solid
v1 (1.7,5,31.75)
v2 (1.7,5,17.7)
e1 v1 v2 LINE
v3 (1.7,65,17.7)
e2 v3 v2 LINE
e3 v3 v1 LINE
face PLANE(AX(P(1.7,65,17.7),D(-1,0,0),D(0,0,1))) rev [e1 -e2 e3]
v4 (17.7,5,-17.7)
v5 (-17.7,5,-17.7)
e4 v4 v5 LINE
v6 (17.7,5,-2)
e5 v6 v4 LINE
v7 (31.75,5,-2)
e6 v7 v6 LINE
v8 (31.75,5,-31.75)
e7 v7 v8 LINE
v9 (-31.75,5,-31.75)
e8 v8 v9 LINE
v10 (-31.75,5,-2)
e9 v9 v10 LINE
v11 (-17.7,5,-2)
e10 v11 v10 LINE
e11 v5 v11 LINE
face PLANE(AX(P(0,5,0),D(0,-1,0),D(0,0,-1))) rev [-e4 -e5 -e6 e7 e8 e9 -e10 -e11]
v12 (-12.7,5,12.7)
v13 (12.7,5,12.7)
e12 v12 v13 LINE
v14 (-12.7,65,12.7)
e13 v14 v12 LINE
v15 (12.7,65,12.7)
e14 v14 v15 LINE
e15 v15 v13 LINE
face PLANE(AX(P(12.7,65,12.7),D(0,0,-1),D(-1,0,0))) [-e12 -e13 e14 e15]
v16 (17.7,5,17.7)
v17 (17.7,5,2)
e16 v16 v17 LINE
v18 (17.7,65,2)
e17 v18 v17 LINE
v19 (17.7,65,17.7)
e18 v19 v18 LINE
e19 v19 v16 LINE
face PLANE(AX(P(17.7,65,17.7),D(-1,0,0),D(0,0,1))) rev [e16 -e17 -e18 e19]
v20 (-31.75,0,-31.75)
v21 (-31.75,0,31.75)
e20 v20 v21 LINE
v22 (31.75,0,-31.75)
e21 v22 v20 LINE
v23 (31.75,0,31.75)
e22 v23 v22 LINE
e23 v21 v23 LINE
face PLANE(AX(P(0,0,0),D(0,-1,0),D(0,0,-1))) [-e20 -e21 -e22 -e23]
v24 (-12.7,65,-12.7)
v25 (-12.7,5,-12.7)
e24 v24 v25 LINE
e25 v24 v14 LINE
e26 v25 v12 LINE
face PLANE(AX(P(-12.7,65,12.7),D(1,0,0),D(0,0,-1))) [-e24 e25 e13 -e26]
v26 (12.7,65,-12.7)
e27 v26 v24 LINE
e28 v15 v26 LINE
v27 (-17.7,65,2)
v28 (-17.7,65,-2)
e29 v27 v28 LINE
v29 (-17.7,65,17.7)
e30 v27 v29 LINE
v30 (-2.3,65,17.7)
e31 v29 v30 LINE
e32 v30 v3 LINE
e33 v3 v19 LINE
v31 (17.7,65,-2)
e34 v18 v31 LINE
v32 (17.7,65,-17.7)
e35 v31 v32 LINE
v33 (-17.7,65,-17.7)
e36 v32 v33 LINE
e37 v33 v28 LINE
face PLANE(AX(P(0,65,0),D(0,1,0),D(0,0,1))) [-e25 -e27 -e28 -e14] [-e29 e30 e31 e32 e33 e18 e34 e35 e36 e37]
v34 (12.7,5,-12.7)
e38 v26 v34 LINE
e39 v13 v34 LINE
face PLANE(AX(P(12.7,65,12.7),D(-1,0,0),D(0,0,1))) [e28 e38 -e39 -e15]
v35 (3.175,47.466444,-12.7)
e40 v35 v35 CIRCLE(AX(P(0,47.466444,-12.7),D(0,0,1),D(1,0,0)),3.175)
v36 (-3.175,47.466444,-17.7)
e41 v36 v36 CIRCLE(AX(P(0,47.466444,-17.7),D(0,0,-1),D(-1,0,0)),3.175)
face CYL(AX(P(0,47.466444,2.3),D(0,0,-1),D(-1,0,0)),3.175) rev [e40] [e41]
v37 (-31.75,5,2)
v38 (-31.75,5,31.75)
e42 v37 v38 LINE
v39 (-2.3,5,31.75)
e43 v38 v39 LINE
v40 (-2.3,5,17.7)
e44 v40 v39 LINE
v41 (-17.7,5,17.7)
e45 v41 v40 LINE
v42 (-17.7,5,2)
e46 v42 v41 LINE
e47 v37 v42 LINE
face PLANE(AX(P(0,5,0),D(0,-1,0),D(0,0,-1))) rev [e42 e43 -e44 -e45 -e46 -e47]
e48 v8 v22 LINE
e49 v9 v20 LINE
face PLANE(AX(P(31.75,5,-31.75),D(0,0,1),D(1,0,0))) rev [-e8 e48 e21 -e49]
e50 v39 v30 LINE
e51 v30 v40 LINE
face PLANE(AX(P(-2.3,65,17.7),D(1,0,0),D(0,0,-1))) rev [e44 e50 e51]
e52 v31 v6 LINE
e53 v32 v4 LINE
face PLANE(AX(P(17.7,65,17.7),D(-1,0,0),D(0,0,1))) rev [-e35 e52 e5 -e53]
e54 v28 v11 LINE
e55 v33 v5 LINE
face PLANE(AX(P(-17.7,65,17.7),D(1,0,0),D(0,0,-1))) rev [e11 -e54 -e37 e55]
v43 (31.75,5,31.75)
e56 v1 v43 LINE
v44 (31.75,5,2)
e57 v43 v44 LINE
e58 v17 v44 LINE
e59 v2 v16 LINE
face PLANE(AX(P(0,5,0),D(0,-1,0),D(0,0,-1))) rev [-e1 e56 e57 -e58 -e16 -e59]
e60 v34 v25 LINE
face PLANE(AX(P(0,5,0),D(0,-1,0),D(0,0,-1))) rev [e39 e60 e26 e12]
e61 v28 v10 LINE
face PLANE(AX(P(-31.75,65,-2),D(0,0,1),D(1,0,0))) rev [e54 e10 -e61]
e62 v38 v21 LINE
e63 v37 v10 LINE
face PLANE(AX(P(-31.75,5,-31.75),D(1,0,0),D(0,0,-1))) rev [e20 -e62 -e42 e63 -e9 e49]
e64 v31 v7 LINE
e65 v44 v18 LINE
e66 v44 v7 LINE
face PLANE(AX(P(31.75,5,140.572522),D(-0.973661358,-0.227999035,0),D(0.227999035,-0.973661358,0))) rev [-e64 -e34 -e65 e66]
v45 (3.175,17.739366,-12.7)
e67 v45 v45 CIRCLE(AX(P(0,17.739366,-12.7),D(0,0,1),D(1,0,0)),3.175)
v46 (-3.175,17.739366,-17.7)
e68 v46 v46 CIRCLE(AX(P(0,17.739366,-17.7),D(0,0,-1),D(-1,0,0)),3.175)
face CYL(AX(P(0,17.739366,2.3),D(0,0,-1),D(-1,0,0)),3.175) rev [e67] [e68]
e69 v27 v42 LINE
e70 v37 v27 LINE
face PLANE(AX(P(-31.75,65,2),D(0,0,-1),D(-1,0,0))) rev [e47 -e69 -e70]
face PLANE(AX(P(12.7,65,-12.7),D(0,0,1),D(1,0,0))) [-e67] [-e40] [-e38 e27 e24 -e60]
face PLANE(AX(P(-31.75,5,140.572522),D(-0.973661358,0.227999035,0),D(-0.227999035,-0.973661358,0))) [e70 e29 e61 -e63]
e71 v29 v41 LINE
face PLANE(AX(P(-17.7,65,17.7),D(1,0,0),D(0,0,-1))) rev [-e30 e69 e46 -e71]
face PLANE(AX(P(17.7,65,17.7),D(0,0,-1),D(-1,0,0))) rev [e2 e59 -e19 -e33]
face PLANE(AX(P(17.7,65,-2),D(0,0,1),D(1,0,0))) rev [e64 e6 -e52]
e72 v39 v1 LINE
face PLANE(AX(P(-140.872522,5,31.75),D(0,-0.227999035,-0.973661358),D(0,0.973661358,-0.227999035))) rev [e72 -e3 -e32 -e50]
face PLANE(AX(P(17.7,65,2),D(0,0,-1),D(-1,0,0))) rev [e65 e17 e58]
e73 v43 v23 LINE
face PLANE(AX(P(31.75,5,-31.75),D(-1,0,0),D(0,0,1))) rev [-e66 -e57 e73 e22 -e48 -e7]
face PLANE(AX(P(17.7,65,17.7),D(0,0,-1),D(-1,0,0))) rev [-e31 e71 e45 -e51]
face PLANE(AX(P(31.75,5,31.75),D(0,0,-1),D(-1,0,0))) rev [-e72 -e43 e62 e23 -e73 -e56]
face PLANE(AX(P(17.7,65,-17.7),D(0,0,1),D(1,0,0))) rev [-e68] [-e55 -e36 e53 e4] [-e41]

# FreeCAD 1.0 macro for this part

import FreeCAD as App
import Part
import Sketcher
Q = App.Units.Quantity

doc = App.newDocument("Part")
body = doc.addObject("PartDesign::Body", "Body")

# Sketch on XZ plane
sketch1 = body.newObject("Sketcher::SketchObject", "Sketch")
sketch1.AttachmentSupport = (doc.getObject("XZ_Plane"), [""])
sketch1.MapMode = "FlatFace"
sketch1.addGeometry([
    Part.LineSegment(App.Vector(-32, -32, 0), App.Vector(-32, 32, 0)),
    Part.LineSegment(App.Vector(-32, 32, 0), App.Vector(32, 32, 0)),
    Part.LineSegment(App.Vector(32, 32, 0), App.Vector(32, -32, 0)),
    Part.LineSegment(App.Vector(32, -32, 0), App.Vector(-32, -32, 0)),
], False)
sketch1.addConstraint([
    Sketcher.Constraint("Coincident", 0, 2, 1, 1),
    Sketcher.Constraint("Coincident", 1, 2, 2, 1),
    Sketcher.Constraint("Coincident", 2, 2, 3, 1),
    Sketcher.Constraint("Coincident", 3, 2, 0, 1),
    Sketcher.Constraint("Vertical", 0),
    Sketcher.Constraint("Horizontal", 1),
    Sketcher.Constraint("Vertical", 2),
    Sketcher.Constraint("Horizontal", 3),
    Sketcher.Constraint("Symmetric", 0, 2, 2, 2, -1, 1),
    Sketcher.Constraint("Equal", 3, 0),
    Sketcher.Constraint("DistanceX", 1, 1, 1, 2, Q("63.5 mm")),
])
pad1 = body.newObject("PartDesign::Pad", "Pad")
pad1.Profile = sketch1
pad1.Length = 5
pad1.Reversed = True

# Sketch on XZ plane
sketch2 = body.newObject("Sketcher::SketchObject", "Sketch001")
sketch2.AttachmentSupport = (doc.getObject("XZ_Plane"), [""])
sketch2.MapMode = "FlatFace"
sketch2.AttachmentOffset = App.Placement(App.Vector(0, 0, -5), App.Rotation())
sketch2.addGeometry([
    Part.LineSegment(App.Vector(-18, -18, 0), App.Vector(-18, 18, 0)),  # 0
    Part.LineSegment(App.Vector(-18, 18, 0), App.Vector(18, 18, 0)),  # 1
    Part.LineSegment(App.Vector(18, 18, 0), App.Vector(18, -18, 0)),  # 2
    Part.LineSegment(App.Vector(18, -18, 0), App.Vector(-18, -18, 0)),  # 3
    Part.LineSegment(App.Vector(13, 13, 0), App.Vector(-13, 13, 0)),  # 4
    Part.LineSegment(App.Vector(-13, 13, 0), App.Vector(-13, -13, 0)),  # 5
    Part.LineSegment(App.Vector(-13, -13, 0), App.Vector(13, -13, 0)),  # 6
    Part.LineSegment(App.Vector(13, -13, 0), App.Vector(13, 13, 0)),  # 7
], False)
sketch2.addConstraint([
    Sketcher.Constraint("Coincident", 0, 2, 1, 1),
    Sketcher.Constraint("Coincident", 1, 2, 2, 1),
    Sketcher.Constraint("Coincident", 2, 2, 3, 1),
    Sketcher.Constraint("Coincident", 3, 2, 0, 1),
    Sketcher.Constraint("Coincident", 4, 2, 5, 1),
    Sketcher.Constraint("Coincident", 5, 2, 6, 1),
    Sketcher.Constraint("Coincident", 6, 2, 7, 1),
    Sketcher.Constraint("Coincident", 7, 2, 4, 1),
    Sketcher.Constraint("Vertical", 0),
    Sketcher.Constraint("Horizontal", 1),
    Sketcher.Constraint("Vertical", 2),
    Sketcher.Constraint("Horizontal", 3),
    Sketcher.Constraint("Horizontal", 4),
    Sketcher.Constraint("Vertical", 5),
    Sketcher.Constraint("Horizontal", 6),
    Sketcher.Constraint("Vertical", 7),
    Sketcher.Constraint("Symmetric", 0, 2, 2, 2, -1, 1),
    Sketcher.Constraint("Symmetric", 4, 2, 6, 2, -1, 1),
    Sketcher.Constraint("Equal", 3, 0),
    Sketcher.Constraint("Equal", 6, 5),
    Sketcher.Constraint("DistanceX", 1, 1, 1, 2, Q("35.4 mm")),
    Sketcher.Constraint("DistanceX", 4, 2, 4, 1, Q("25.4 mm")),
])
pad2 = body.newObject("PartDesign::Pad", "Pad001")
pad2.Profile = sketch2
pad2.Length = 60
pad2.Reversed = True

# Sketch on XZ plane
sketch3 = body.newObject("Sketcher::SketchObject", "Sketch002")
sketch3.AttachmentSupport = (doc.getObject("XZ_Plane"), [""])
sketch3.MapMode = "FlatFace"
sketch3.AttachmentOffset = App.Placement(App.Vector(0, 0, -5), App.Rotation())
sketch3.addGeometry([
    Part.LineSegment(App.Vector(-31.8, -2, 0), App.Vector(-31.8, 2, 0)),
    Part.LineSegment(App.Vector(-31.8, 2, 0), App.Vector(-17.7, 2, 0)),
    Part.LineSegment(App.Vector(-17.7, 2, 0), App.Vector(-17.7, -2, 0)),
    Part.LineSegment(App.Vector(-17.7, -2, 0), App.Vector(-31.8, -2, 0)),
], False)
sketch3.addConstraint([
    Sketcher.Constraint("Coincident", 0, 2, 1, 1),
    Sketcher.Constraint("Coincident", 1, 2, 2, 1),
    Sketcher.Constraint("Coincident", 2, 2, 3, 1),
    Sketcher.Constraint("Coincident", 3, 2, 0, 1),
    Sketcher.Constraint("Vertical", 0),
    Sketcher.Constraint("Horizontal", 1),
    Sketcher.Constraint("Vertical", 2),
    Sketcher.Constraint("Horizontal", 3),
    Sketcher.Constraint("DistanceY", 0, 1, 0, 2, Q("4 mm")),
    Sketcher.Constraint("DistanceY", -1, 1, 0, 2, Q("2 mm")),
    Sketcher.Constraint("DistanceX", 1, 1, 1, 2, Q("14.05 mm")),
    Sketcher.Constraint("DistanceX", 1, 2, -1, 1, Q("17.7 mm")),
])
pad3 = body.newObject("PartDesign::Pad", "Pad002")
pad3.Profile = sketch3
pad3.Length = 60
pad3.Reversed = True

# Sketch on XY plane
sketch4 = body.newObject("Sketcher::SketchObject", "Sketch003")
sketch4.AttachmentSupport = (doc.getObject("XY_Plane"), [""])
sketch4.MapMode = "FlatFace"
sketch4.AttachmentOffset = App.Placement(App.Vector(0, 0, 2), App.Rotation())
sketch4.addGeometry([
    Part.LineSegment(App.Vector(-74, -175, 0), App.Vector(-32, 5, 0)),  # 0
    Part.LineSegment(App.Vector(-32, 5, 0), App.Vector(-18, 65, 0)),  # 1
    Part.LineSegment(App.Vector(-18, 65, 0), App.Vector(24, 245, 0)),  # 2
    Part.LineSegment(App.Vector(24, 245, 0), App.Vector(-335, 329, 0)),  # 3
    Part.LineSegment(App.Vector(-335, 329, 0), App.Vector(-434, -91, 0)),  # 4
    Part.LineSegment(App.Vector(-434, -91, 0), App.Vector(-74, -175, 0)),  # 5
], False)
sketch4.addConstraint([
    Sketcher.Constraint("Coincident", 0, 2, 1, 1),
    Sketcher.Constraint("Coincident", 1, 2, 2, 1),
    Sketcher.Constraint("Coincident", 2, 2, 3, 1),
    Sketcher.Constraint("Coincident", 3, 2, 4, 1),
    Sketcher.Constraint("Coincident", 4, 2, 5, 1),
    Sketcher.Constraint("Coincident", 5, 2, 0, 1),
    Sketcher.Constraint("Parallel", 0, 1),
    Sketcher.Constraint("Parallel", 1, 2),
    Sketcher.Constraint("Perpendicular", 2, 3),
    Sketcher.Constraint("Perpendicular", 3, 4),
    Sketcher.Constraint("Perpendicular", 4, 5),
    Sketcher.Constraint("Equal", 0, 2),
    Sketcher.Constraint("DistanceY", -1, 1, 0, 2, Q("5 mm")),
    Sketcher.Constraint("DistanceY", -1, 1, 1, 2, Q("65 mm")),
    Sketcher.Constraint("DistanceX", 1, 2, -1, 1, Q("17.7 mm")),
    Sketcher.Constraint("DistanceX", 0, 2, -1, 1, Q("31.75 mm")),
    Sketcher.Constraint("Distance", 0, Q("184.725499 mm")),
    Sketcher.Constraint("DistanceY", -1, 1, 3, 2, Q("329.094551 mm")),
])
pocket1 = body.newObject("PartDesign::Pocket", "Pocket")
pocket1.Profile = sketch4
pocket1.Type = "ThroughAll"
pocket1.Midplane = True

# Sketch on XZ plane
sketch5 = body.newObject("Sketcher::SketchObject", "Sketch004")
sketch5.AttachmentSupport = (doc.getObject("XZ_Plane"), [""])
sketch5.MapMode = "FlatFace"
sketch5.AttachmentOffset = App.Placement(App.Vector(0, 0, -5), App.Rotation())
sketch5.addGeometry([
    Part.LineSegment(App.Vector(17.7, -2, 0), App.Vector(17.7, 2, 0)),
    Part.LineSegment(App.Vector(17.7, 2, 0), App.Vector(31.8, 2, 0)),
    Part.LineSegment(App.Vector(31.8, 2, 0), App.Vector(31.8, -2, 0)),
    Part.LineSegment(App.Vector(31.8, -2, 0), App.Vector(17.7, -2, 0)),
], False)
sketch5.addConstraint([
    Sketcher.Constraint("Coincident", 0, 2, 1, 1),
    Sketcher.Constraint("Coincident", 1, 2, 2, 1),
    Sketcher.Constraint("Coincident", 2, 2, 3, 1),
    Sketcher.Constraint("Coincident", 3, 2, 0, 1),
    Sketcher.Constraint("Vertical", 0),
    Sketcher.Constraint("Horizontal", 1),
    Sketcher.Constraint("Vertical", 2),
    Sketcher.Constraint("Horizontal", 3),
    Sketcher.Constraint("DistanceY", 0, 1, 0, 2, Q("4 mm")),
    Sketcher.Constraint("DistanceY", -1, 1, 0, 2, Q("2 mm")),
    Sketcher.Constraint("DistanceX", 1, 1, 1, 2, Q("14.05 mm")),
    Sketcher.Constraint("DistanceX", -1, 1, 0, 2, Q("17.7 mm")),
])
pad4 = body.newObject("PartDesign::Pad", "Pad003")
pad4.Profile = sketch5
pad4.Length = 60
pad4.Reversed = True

# Sketch on XY plane
sketch6 = body.newObject("Sketcher::SketchObject", "Sketch005")
sketch6.AttachmentSupport = (doc.getObject("XY_Plane"), [""])
sketch6.MapMode = "FlatFace"
sketch6.AttachmentOffset = App.Placement(App.Vector(0, 0, 2), App.Rotation())
sketch6.addGeometry([
    Part.LineSegment(App.Vector(32, 5, 0), App.Vector(74, -175, 0)),  # 0
    Part.LineSegment(App.Vector(74, -175, 0), App.Vector(434, -91, 0)),  # 1
    Part.LineSegment(App.Vector(434, -91, 0), App.Vector(335, 329, 0)),  # 2
    Part.LineSegment(App.Vector(335, 329, 0), App.Vector(-24, 245, 0)),  # 3
    Part.LineSegment(App.Vector(-24, 245, 0), App.Vector(18, 65, 0)),  # 4
    Part.LineSegment(App.Vector(18, 65, 0), App.Vector(32, 5, 0)),  # 5
], False)
sketch6.addConstraint([
    Sketcher.Constraint("Coincident", 0, 2, 1, 1),
    Sketcher.Constraint("Coincident", 1, 2, 2, 1),
    Sketcher.Constraint("Coincident", 2, 2, 3, 1),
    Sketcher.Constraint("Coincident", 3, 2, 4, 1),
    Sketcher.Constraint("Coincident", 4, 2, 5, 1),
    Sketcher.Constraint("Coincident", 5, 2, 0, 1),
    Sketcher.Constraint("Perpendicular", 0, 1),
    Sketcher.Constraint("Perpendicular", 1, 2),
    Sketcher.Constraint("Perpendicular", 2, 3),
    Sketcher.Constraint("Perpendicular", 3, 4),
    Sketcher.Constraint("Parallel", 4, 5),
    Sketcher.Constraint("Equal", 0, 4),
    Sketcher.Constraint("DistanceY", -1, 1, 4, 2, Q("65 mm")),
    Sketcher.Constraint("DistanceY", -1, 1, 5, 2, Q("5 mm")),
    Sketcher.Constraint("DistanceX", -1, 1, 4, 2, Q("17.7 mm")),
    Sketcher.Constraint("DistanceX", -1, 1, 5, 2, Q("31.75 mm")),
    Sketcher.Constraint("Distance", 0, Q("184.725499 mm")),
    Sketcher.Constraint("DistanceY", 1, 2, -1, 1, Q("90.625609 mm")),
])
pocket2 = body.newObject("PartDesign::Pocket", "Pocket001")
pocket2.Profile = sketch6
pocket2.Type = "ThroughAll"
pocket2.Midplane = True

# Sketch on XZ plane
sketch7 = body.newObject("Sketcher::SketchObject", "Sketch006")
sketch7.AttachmentSupport = (doc.getObject("XZ_Plane"), [""])
sketch7.MapMode = "FlatFace"
sketch7.AttachmentOffset = App.Placement(App.Vector(0, 0, -5), App.Rotation())
sketch7.addGeometry([
    Part.LineSegment(App.Vector(-2.3, 17.7, 0), App.Vector(-2.3, 31.8, 0)),
    Part.LineSegment(App.Vector(-2.3, 31.8, 0), App.Vector(1.7, 31.8, 0)),
    Part.LineSegment(App.Vector(1.7, 31.8, 0), App.Vector(1.7, 17.7, 0)),
    Part.LineSegment(App.Vector(1.7, 17.7, 0), App.Vector(-2.3, 17.7, 0)),
], False)
sketch7.addConstraint([
    Sketcher.Constraint("Coincident", 0, 2, 1, 1),
    Sketcher.Constraint("Coincident", 1, 2, 2, 1),
    Sketcher.Constraint("Coincident", 2, 2, 3, 1),
    Sketcher.Constraint("Coincident", 3, 2, 0, 1),
    Sketcher.Constraint("Vertical", 0),
    Sketcher.Constraint("Horizontal", 1),
    Sketcher.Constraint("Vertical", 2),
    Sketcher.Constraint("Horizontal", 3),
    Sketcher.Constraint("DistanceX", 1, 1, 1, 2, Q("4 mm")),
    Sketcher.Constraint("DistanceY", 0, 1, 0, 2, Q("14.05 mm")),
    Sketcher.Constraint("DistanceX", 0, 2, -1, 1, Q("2.3 mm")),
    Sketcher.Constraint("DistanceY", -1, 1, 2, 2, Q("17.7 mm")),
])
pad5 = body.newObject("PartDesign::Pad", "Pad004")
pad5.Profile = sketch7
pad5.Length = 60
pad5.Reversed = True

# Sketch on YZ plane
sketch8 = body.newObject("Sketcher::SketchObject", "Sketch007")
sketch8.AttachmentSupport = (doc.getObject("YZ_Plane"), [""])
sketch8.MapMode = "FlatFace"
sketch8.AttachmentOffset = App.Placement(App.Vector(0, 0, -2.3), App.Rotation())
sketch8.addGeometry([
    Part.LineSegment(App.Vector(5, 32, 0), App.Vector(-175, 74, 0)),  # 0
    Part.LineSegment(App.Vector(-175, 74, 0), App.Vector(-91, 434, 0)),  # 1
    Part.LineSegment(App.Vector(-91, 434, 0), App.Vector(329, 335, 0)),  # 2
    Part.LineSegment(App.Vector(329, 335, 0), App.Vector(245, -24, 0)),  # 3
    Part.LineSegment(App.Vector(245, -24, 0), App.Vector(65, 18, 0)),  # 4
    Part.LineSegment(App.Vector(65, 18, 0), App.Vector(5, 32, 0)),  # 5
], False)
sketch8.addConstraint([
    Sketcher.Constraint("Coincident", 0, 2, 1, 1),
    Sketcher.Constraint("Coincident", 1, 2, 2, 1),
    Sketcher.Constraint("Coincident", 2, 2, 3, 1),
    Sketcher.Constraint("Coincident", 3, 2, 4, 1),
    Sketcher.Constraint("Coincident", 4, 2, 5, 1),
    Sketcher.Constraint("Coincident", 5, 2, 0, 1),
    Sketcher.Constraint("Perpendicular", 0, 1),
    Sketcher.Constraint("Perpendicular", 1, 2),
    Sketcher.Constraint("Perpendicular", 2, 3),
    Sketcher.Constraint("Perpendicular", 3, 4),
    Sketcher.Constraint("Parallel", 4, 5),
    Sketcher.Constraint("Equal", 0, 4),
    Sketcher.Constraint("DistanceX", -1, 1, 4, 2, Q("65 mm")),
    Sketcher.Constraint("DistanceX", -1, 1, 5, 2, Q("5 mm")),
    Sketcher.Constraint("DistanceY", -1, 1, 4, 2, Q("17.7 mm")),
    Sketcher.Constraint("DistanceY", -1, 1, 5, 2, Q("31.75 mm")),
    Sketcher.Constraint("Distance", 0, Q("184.725499 mm")),
    Sketcher.Constraint("DistanceX", 1, 2, -1, 1, Q("90.625609 mm")),
])
pocket3 = body.newObject("PartDesign::Pocket", "Pocket002")
pocket3.Profile = sketch8
pocket3.Type = "ThroughAll"
pocket3.Midplane = True

# Sketch on XY plane
sketch9 = body.newObject("Sketcher::SketchObject", "Sketch008")
sketch9.AttachmentSupport = (doc.getObject("XY_Plane"), [""])
sketch9.MapMode = "FlatFace"
sketch9.AttachmentOffset = App.Placement(App.Vector(0, 0, -17.7), App.Rotation())
sketch9.addGeometry([
    Part.Circle(App.Vector(0, 17.7, 0), App.Vector(0, 0, 1), 3.2),
    Part.Circle(App.Vector(0, 47.5, 0), App.Vector(0, 0, 1), 3.2),
], False)
sketch9.addConstraint([
    Sketcher.Constraint("Equal", 0, 1),
    Sketcher.Constraint("PointOnObject", 0, 3, -2),
    Sketcher.Constraint("PointOnObject", 1, 3, -2),
    Sketcher.Constraint("Diameter", 0, Q("6.35 mm")),
    Sketcher.Constraint("DistanceY", 0, 3, 1, 3, Q("29.727078 mm")),
    Sketcher.Constraint("DistanceY", -1, 1, 0, 3, Q("17.739366 mm")),
])
pocket4 = body.newObject("PartDesign::Pocket", "Pocket003")
pocket4.Profile = sketch9
pocket4.Length = 20
pocket4.Reversed = True

doc.recompute()
